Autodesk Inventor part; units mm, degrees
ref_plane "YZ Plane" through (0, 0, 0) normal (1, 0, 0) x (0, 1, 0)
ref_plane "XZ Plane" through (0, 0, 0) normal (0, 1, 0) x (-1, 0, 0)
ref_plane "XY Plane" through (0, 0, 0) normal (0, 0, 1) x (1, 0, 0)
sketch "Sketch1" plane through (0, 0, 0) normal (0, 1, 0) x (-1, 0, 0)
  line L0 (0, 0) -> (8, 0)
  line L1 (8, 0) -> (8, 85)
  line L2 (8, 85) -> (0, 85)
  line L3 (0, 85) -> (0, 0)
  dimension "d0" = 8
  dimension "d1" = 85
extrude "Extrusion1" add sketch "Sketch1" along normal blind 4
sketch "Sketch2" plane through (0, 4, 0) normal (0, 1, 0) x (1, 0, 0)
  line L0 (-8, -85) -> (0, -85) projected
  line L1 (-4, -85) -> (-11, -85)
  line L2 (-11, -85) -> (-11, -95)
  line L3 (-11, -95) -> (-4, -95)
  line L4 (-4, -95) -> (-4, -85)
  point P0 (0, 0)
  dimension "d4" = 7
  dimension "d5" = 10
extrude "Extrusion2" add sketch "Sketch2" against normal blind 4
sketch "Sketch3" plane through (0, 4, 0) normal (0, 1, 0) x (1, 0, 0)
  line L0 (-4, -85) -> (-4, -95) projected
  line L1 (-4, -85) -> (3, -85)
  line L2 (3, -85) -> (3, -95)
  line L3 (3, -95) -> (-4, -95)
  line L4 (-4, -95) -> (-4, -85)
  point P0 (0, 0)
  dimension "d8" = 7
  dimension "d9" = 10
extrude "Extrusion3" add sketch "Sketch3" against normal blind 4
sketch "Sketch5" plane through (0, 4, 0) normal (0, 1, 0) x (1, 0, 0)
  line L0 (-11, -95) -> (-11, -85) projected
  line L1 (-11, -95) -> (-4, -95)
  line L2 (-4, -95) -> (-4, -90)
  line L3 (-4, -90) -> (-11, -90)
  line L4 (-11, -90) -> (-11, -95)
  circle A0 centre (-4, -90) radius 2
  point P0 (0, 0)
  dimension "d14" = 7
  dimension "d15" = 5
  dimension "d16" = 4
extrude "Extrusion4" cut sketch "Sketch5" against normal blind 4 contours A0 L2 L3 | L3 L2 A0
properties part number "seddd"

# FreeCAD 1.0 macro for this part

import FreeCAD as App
import Part
import Sketcher

V = App.Vector

doc = App.newDocument("Part")
body = doc.addObject("PartDesign::Body", "Body")

sketch1 = body.newObject("Sketcher::SketchObject", "Sketch")
sketch1.AttachmentSupport = (doc.getObject("XZ_Plane"), [""])
sketch1.MapMode = "FlatFace"
sketch1.addGeometry(Part.LineSegment(V(0, 85, 0), V(0, 0, 0)), False)
sketch1.addGeometry(Part.LineSegment(V(0, 0, 0), V(-8, 0, 0)), False)
sketch1.addGeometry(Part.LineSegment(V(-8, 0, 0), V(-8, 85, 0)), False)
sketch1.addGeometry(Part.LineSegment(V(-8, 85, 0), V(0, 85, 0)), False)
sketch1.addConstraint(Sketcher.Constraint("Coincident", 0, 2, 1, 1))
sketch1.addConstraint(Sketcher.Constraint("Coincident", 1, 2, 2, 1))
sketch1.addConstraint(Sketcher.Constraint("Coincident", 2, 2, 3, 1))
sketch1.addConstraint(Sketcher.Constraint("Coincident", 3, 2, 0, 1))
sketch1.addConstraint(Sketcher.Constraint("Vertical", 0))
sketch1.addConstraint(Sketcher.Constraint("Horizontal", 1))
sketch1.addConstraint(Sketcher.Constraint("Vertical", 2))
sketch1.addConstraint(Sketcher.Constraint("Horizontal", 3))
sketch1.addConstraint(Sketcher.Constraint("Coincident", 0, 2, -1, 1))
sketch1.addConstraint(Sketcher.Constraint("DistanceX", 1, 2, 1, 1, 8.0))
sketch1.addConstraint(Sketcher.Constraint("DistanceY", 0, 2, 0, 1, 85.0))
pad1 = body.newObject("PartDesign::Pad", "Pad")
pad1.Profile = sketch1
pad1.Length = 4
pad1.Reversed = True

sketch2 = body.newObject("Sketcher::SketchObject", "Sketch001")
sketch2.AttachmentSupport = (doc.getObject("XZ_Plane"), [""])
sketch2.MapMode = "FlatFace"
sketch2.AttachmentOffset = App.Placement(V(0, 0, -4), App.Rotation())
sketch2.addGeometry(Part.LineSegment(V(-4, 85, 0), V(-11, 85, 0)), False)
sketch2.addGeometry(Part.LineSegment(V(-11, 85, 0), V(-11, 95, 0)), False)
sketch2.addGeometry(Part.LineSegment(V(-11, 95, 0), V(-4, 95, 0)), False)
sketch2.addGeometry(Part.LineSegment(V(-4, 95, 0), V(-4, 85, 0)), False)
sketch2.addConstraint(Sketcher.Constraint("Coincident", 0, 2, 1, 1))
sketch2.addConstraint(Sketcher.Constraint("Coincident", 1, 2, 2, 1))
sketch2.addConstraint(Sketcher.Constraint("Coincident", 2, 2, 3, 1))
sketch2.addConstraint(Sketcher.Constraint("Coincident", 3, 2, 0, 1))
sketch2.addConstraint(Sketcher.Constraint("Horizontal", 0))
sketch2.addConstraint(Sketcher.Constraint("Vertical", 1))
sketch2.addConstraint(Sketcher.Constraint("Horizontal", 2))
sketch2.addConstraint(Sketcher.Constraint("Vertical", 3))
sketch2.addConstraint(Sketcher.Constraint("DistanceX", 0, 2, 0, 1, 7.0))
sketch2.addConstraint(Sketcher.Constraint("DistanceY", 1, 1, 1, 2, 10.0))
sketch2.addConstraint(Sketcher.Constraint("DistanceX", 0, 2, -1, 1, 11.0))
sketch2.addConstraint(Sketcher.Constraint("DistanceY", -1, 1, 0, 2, 85.0))
pad2 = body.newObject("PartDesign::Pad", "Pad001")
pad2.Profile = sketch2
pad2.Length = 4

sketch3 = body.newObject("Sketcher::SketchObject", "Sketch002")
sketch3.AttachmentSupport = (doc.getObject("XZ_Plane"), [""])
sketch3.MapMode = "FlatFace"
sketch3.AttachmentOffset = App.Placement(V(0, 0, -4), App.Rotation())
sketch3.addGeometry(Part.LineSegment(V(3, 85, 0), V(-4, 85, 0)), False)
sketch3.addGeometry(Part.LineSegment(V(-4, 85, 0), V(-4, 95, 0)), False)
sketch3.addGeometry(Part.LineSegment(V(-4, 95, 0), V(3, 95, 0)), False)
sketch3.addGeometry(Part.LineSegment(V(3, 95, 0), V(3, 85, 0)), False)
sketch3.addConstraint(Sketcher.Constraint("Coincident", 0, 2, 1, 1))
sketch3.addConstraint(Sketcher.Constraint("Coincident", 1, 2, 2, 1))
sketch3.addConstraint(Sketcher.Constraint("Coincident", 2, 2, 3, 1))
sketch3.addConstraint(Sketcher.Constraint("Coincident", 3, 2, 0, 1))
sketch3.addConstraint(Sketcher.Constraint("Horizontal", 0))
sketch3.addConstraint(Sketcher.Constraint("Vertical", 1))
sketch3.addConstraint(Sketcher.Constraint("Horizontal", 2))
sketch3.addConstraint(Sketcher.Constraint("Vertical", 3))
sketch3.addConstraint(Sketcher.Constraint("DistanceX", 0, 2, 0, 1, 7.0))
sketch3.addConstraint(Sketcher.Constraint("DistanceY", 1, 1, 1, 2, 10.0))
sketch3.addConstraint(Sketcher.Constraint("DistanceX", 0, 2, -1, 1, 4.0))
sketch3.addConstraint(Sketcher.Constraint("DistanceY", -1, 1, 0, 2, 85.0))
pad3 = body.newObject("PartDesign::Pad", "Pad002")
pad3.Profile = sketch3
pad3.Length = 4

sketch4 = body.newObject("Sketcher::SketchObject", "Sketch003")
sketch4.AttachmentSupport = (doc.getObject("XZ_Plane"), [""])
sketch4.MapMode = "FlatFace"
sketch4.AttachmentOffset = App.Placement(V(0, 0, -4), App.Rotation())
sketch4.addGeometry(Part.Circle(V(-4, 90, 0), V(0, 0, 1), 2), False)
sketch4.addConstraint(Sketcher.Constraint("Diameter", 0, 4.0))
sketch4.addConstraint(Sketcher.Constraint("DistanceX", 0, 3, -1, 1, 4.0))
sketch4.addConstraint(Sketcher.Constraint("DistanceY", -1, 1, 0, 3, 90.0))
pocket1 = body.newObject("PartDesign::Pocket", "Pocket")
pocket1.Profile = sketch4
pocket1.Length = 4
pocket1.Reversed = True

doc.recompute()
